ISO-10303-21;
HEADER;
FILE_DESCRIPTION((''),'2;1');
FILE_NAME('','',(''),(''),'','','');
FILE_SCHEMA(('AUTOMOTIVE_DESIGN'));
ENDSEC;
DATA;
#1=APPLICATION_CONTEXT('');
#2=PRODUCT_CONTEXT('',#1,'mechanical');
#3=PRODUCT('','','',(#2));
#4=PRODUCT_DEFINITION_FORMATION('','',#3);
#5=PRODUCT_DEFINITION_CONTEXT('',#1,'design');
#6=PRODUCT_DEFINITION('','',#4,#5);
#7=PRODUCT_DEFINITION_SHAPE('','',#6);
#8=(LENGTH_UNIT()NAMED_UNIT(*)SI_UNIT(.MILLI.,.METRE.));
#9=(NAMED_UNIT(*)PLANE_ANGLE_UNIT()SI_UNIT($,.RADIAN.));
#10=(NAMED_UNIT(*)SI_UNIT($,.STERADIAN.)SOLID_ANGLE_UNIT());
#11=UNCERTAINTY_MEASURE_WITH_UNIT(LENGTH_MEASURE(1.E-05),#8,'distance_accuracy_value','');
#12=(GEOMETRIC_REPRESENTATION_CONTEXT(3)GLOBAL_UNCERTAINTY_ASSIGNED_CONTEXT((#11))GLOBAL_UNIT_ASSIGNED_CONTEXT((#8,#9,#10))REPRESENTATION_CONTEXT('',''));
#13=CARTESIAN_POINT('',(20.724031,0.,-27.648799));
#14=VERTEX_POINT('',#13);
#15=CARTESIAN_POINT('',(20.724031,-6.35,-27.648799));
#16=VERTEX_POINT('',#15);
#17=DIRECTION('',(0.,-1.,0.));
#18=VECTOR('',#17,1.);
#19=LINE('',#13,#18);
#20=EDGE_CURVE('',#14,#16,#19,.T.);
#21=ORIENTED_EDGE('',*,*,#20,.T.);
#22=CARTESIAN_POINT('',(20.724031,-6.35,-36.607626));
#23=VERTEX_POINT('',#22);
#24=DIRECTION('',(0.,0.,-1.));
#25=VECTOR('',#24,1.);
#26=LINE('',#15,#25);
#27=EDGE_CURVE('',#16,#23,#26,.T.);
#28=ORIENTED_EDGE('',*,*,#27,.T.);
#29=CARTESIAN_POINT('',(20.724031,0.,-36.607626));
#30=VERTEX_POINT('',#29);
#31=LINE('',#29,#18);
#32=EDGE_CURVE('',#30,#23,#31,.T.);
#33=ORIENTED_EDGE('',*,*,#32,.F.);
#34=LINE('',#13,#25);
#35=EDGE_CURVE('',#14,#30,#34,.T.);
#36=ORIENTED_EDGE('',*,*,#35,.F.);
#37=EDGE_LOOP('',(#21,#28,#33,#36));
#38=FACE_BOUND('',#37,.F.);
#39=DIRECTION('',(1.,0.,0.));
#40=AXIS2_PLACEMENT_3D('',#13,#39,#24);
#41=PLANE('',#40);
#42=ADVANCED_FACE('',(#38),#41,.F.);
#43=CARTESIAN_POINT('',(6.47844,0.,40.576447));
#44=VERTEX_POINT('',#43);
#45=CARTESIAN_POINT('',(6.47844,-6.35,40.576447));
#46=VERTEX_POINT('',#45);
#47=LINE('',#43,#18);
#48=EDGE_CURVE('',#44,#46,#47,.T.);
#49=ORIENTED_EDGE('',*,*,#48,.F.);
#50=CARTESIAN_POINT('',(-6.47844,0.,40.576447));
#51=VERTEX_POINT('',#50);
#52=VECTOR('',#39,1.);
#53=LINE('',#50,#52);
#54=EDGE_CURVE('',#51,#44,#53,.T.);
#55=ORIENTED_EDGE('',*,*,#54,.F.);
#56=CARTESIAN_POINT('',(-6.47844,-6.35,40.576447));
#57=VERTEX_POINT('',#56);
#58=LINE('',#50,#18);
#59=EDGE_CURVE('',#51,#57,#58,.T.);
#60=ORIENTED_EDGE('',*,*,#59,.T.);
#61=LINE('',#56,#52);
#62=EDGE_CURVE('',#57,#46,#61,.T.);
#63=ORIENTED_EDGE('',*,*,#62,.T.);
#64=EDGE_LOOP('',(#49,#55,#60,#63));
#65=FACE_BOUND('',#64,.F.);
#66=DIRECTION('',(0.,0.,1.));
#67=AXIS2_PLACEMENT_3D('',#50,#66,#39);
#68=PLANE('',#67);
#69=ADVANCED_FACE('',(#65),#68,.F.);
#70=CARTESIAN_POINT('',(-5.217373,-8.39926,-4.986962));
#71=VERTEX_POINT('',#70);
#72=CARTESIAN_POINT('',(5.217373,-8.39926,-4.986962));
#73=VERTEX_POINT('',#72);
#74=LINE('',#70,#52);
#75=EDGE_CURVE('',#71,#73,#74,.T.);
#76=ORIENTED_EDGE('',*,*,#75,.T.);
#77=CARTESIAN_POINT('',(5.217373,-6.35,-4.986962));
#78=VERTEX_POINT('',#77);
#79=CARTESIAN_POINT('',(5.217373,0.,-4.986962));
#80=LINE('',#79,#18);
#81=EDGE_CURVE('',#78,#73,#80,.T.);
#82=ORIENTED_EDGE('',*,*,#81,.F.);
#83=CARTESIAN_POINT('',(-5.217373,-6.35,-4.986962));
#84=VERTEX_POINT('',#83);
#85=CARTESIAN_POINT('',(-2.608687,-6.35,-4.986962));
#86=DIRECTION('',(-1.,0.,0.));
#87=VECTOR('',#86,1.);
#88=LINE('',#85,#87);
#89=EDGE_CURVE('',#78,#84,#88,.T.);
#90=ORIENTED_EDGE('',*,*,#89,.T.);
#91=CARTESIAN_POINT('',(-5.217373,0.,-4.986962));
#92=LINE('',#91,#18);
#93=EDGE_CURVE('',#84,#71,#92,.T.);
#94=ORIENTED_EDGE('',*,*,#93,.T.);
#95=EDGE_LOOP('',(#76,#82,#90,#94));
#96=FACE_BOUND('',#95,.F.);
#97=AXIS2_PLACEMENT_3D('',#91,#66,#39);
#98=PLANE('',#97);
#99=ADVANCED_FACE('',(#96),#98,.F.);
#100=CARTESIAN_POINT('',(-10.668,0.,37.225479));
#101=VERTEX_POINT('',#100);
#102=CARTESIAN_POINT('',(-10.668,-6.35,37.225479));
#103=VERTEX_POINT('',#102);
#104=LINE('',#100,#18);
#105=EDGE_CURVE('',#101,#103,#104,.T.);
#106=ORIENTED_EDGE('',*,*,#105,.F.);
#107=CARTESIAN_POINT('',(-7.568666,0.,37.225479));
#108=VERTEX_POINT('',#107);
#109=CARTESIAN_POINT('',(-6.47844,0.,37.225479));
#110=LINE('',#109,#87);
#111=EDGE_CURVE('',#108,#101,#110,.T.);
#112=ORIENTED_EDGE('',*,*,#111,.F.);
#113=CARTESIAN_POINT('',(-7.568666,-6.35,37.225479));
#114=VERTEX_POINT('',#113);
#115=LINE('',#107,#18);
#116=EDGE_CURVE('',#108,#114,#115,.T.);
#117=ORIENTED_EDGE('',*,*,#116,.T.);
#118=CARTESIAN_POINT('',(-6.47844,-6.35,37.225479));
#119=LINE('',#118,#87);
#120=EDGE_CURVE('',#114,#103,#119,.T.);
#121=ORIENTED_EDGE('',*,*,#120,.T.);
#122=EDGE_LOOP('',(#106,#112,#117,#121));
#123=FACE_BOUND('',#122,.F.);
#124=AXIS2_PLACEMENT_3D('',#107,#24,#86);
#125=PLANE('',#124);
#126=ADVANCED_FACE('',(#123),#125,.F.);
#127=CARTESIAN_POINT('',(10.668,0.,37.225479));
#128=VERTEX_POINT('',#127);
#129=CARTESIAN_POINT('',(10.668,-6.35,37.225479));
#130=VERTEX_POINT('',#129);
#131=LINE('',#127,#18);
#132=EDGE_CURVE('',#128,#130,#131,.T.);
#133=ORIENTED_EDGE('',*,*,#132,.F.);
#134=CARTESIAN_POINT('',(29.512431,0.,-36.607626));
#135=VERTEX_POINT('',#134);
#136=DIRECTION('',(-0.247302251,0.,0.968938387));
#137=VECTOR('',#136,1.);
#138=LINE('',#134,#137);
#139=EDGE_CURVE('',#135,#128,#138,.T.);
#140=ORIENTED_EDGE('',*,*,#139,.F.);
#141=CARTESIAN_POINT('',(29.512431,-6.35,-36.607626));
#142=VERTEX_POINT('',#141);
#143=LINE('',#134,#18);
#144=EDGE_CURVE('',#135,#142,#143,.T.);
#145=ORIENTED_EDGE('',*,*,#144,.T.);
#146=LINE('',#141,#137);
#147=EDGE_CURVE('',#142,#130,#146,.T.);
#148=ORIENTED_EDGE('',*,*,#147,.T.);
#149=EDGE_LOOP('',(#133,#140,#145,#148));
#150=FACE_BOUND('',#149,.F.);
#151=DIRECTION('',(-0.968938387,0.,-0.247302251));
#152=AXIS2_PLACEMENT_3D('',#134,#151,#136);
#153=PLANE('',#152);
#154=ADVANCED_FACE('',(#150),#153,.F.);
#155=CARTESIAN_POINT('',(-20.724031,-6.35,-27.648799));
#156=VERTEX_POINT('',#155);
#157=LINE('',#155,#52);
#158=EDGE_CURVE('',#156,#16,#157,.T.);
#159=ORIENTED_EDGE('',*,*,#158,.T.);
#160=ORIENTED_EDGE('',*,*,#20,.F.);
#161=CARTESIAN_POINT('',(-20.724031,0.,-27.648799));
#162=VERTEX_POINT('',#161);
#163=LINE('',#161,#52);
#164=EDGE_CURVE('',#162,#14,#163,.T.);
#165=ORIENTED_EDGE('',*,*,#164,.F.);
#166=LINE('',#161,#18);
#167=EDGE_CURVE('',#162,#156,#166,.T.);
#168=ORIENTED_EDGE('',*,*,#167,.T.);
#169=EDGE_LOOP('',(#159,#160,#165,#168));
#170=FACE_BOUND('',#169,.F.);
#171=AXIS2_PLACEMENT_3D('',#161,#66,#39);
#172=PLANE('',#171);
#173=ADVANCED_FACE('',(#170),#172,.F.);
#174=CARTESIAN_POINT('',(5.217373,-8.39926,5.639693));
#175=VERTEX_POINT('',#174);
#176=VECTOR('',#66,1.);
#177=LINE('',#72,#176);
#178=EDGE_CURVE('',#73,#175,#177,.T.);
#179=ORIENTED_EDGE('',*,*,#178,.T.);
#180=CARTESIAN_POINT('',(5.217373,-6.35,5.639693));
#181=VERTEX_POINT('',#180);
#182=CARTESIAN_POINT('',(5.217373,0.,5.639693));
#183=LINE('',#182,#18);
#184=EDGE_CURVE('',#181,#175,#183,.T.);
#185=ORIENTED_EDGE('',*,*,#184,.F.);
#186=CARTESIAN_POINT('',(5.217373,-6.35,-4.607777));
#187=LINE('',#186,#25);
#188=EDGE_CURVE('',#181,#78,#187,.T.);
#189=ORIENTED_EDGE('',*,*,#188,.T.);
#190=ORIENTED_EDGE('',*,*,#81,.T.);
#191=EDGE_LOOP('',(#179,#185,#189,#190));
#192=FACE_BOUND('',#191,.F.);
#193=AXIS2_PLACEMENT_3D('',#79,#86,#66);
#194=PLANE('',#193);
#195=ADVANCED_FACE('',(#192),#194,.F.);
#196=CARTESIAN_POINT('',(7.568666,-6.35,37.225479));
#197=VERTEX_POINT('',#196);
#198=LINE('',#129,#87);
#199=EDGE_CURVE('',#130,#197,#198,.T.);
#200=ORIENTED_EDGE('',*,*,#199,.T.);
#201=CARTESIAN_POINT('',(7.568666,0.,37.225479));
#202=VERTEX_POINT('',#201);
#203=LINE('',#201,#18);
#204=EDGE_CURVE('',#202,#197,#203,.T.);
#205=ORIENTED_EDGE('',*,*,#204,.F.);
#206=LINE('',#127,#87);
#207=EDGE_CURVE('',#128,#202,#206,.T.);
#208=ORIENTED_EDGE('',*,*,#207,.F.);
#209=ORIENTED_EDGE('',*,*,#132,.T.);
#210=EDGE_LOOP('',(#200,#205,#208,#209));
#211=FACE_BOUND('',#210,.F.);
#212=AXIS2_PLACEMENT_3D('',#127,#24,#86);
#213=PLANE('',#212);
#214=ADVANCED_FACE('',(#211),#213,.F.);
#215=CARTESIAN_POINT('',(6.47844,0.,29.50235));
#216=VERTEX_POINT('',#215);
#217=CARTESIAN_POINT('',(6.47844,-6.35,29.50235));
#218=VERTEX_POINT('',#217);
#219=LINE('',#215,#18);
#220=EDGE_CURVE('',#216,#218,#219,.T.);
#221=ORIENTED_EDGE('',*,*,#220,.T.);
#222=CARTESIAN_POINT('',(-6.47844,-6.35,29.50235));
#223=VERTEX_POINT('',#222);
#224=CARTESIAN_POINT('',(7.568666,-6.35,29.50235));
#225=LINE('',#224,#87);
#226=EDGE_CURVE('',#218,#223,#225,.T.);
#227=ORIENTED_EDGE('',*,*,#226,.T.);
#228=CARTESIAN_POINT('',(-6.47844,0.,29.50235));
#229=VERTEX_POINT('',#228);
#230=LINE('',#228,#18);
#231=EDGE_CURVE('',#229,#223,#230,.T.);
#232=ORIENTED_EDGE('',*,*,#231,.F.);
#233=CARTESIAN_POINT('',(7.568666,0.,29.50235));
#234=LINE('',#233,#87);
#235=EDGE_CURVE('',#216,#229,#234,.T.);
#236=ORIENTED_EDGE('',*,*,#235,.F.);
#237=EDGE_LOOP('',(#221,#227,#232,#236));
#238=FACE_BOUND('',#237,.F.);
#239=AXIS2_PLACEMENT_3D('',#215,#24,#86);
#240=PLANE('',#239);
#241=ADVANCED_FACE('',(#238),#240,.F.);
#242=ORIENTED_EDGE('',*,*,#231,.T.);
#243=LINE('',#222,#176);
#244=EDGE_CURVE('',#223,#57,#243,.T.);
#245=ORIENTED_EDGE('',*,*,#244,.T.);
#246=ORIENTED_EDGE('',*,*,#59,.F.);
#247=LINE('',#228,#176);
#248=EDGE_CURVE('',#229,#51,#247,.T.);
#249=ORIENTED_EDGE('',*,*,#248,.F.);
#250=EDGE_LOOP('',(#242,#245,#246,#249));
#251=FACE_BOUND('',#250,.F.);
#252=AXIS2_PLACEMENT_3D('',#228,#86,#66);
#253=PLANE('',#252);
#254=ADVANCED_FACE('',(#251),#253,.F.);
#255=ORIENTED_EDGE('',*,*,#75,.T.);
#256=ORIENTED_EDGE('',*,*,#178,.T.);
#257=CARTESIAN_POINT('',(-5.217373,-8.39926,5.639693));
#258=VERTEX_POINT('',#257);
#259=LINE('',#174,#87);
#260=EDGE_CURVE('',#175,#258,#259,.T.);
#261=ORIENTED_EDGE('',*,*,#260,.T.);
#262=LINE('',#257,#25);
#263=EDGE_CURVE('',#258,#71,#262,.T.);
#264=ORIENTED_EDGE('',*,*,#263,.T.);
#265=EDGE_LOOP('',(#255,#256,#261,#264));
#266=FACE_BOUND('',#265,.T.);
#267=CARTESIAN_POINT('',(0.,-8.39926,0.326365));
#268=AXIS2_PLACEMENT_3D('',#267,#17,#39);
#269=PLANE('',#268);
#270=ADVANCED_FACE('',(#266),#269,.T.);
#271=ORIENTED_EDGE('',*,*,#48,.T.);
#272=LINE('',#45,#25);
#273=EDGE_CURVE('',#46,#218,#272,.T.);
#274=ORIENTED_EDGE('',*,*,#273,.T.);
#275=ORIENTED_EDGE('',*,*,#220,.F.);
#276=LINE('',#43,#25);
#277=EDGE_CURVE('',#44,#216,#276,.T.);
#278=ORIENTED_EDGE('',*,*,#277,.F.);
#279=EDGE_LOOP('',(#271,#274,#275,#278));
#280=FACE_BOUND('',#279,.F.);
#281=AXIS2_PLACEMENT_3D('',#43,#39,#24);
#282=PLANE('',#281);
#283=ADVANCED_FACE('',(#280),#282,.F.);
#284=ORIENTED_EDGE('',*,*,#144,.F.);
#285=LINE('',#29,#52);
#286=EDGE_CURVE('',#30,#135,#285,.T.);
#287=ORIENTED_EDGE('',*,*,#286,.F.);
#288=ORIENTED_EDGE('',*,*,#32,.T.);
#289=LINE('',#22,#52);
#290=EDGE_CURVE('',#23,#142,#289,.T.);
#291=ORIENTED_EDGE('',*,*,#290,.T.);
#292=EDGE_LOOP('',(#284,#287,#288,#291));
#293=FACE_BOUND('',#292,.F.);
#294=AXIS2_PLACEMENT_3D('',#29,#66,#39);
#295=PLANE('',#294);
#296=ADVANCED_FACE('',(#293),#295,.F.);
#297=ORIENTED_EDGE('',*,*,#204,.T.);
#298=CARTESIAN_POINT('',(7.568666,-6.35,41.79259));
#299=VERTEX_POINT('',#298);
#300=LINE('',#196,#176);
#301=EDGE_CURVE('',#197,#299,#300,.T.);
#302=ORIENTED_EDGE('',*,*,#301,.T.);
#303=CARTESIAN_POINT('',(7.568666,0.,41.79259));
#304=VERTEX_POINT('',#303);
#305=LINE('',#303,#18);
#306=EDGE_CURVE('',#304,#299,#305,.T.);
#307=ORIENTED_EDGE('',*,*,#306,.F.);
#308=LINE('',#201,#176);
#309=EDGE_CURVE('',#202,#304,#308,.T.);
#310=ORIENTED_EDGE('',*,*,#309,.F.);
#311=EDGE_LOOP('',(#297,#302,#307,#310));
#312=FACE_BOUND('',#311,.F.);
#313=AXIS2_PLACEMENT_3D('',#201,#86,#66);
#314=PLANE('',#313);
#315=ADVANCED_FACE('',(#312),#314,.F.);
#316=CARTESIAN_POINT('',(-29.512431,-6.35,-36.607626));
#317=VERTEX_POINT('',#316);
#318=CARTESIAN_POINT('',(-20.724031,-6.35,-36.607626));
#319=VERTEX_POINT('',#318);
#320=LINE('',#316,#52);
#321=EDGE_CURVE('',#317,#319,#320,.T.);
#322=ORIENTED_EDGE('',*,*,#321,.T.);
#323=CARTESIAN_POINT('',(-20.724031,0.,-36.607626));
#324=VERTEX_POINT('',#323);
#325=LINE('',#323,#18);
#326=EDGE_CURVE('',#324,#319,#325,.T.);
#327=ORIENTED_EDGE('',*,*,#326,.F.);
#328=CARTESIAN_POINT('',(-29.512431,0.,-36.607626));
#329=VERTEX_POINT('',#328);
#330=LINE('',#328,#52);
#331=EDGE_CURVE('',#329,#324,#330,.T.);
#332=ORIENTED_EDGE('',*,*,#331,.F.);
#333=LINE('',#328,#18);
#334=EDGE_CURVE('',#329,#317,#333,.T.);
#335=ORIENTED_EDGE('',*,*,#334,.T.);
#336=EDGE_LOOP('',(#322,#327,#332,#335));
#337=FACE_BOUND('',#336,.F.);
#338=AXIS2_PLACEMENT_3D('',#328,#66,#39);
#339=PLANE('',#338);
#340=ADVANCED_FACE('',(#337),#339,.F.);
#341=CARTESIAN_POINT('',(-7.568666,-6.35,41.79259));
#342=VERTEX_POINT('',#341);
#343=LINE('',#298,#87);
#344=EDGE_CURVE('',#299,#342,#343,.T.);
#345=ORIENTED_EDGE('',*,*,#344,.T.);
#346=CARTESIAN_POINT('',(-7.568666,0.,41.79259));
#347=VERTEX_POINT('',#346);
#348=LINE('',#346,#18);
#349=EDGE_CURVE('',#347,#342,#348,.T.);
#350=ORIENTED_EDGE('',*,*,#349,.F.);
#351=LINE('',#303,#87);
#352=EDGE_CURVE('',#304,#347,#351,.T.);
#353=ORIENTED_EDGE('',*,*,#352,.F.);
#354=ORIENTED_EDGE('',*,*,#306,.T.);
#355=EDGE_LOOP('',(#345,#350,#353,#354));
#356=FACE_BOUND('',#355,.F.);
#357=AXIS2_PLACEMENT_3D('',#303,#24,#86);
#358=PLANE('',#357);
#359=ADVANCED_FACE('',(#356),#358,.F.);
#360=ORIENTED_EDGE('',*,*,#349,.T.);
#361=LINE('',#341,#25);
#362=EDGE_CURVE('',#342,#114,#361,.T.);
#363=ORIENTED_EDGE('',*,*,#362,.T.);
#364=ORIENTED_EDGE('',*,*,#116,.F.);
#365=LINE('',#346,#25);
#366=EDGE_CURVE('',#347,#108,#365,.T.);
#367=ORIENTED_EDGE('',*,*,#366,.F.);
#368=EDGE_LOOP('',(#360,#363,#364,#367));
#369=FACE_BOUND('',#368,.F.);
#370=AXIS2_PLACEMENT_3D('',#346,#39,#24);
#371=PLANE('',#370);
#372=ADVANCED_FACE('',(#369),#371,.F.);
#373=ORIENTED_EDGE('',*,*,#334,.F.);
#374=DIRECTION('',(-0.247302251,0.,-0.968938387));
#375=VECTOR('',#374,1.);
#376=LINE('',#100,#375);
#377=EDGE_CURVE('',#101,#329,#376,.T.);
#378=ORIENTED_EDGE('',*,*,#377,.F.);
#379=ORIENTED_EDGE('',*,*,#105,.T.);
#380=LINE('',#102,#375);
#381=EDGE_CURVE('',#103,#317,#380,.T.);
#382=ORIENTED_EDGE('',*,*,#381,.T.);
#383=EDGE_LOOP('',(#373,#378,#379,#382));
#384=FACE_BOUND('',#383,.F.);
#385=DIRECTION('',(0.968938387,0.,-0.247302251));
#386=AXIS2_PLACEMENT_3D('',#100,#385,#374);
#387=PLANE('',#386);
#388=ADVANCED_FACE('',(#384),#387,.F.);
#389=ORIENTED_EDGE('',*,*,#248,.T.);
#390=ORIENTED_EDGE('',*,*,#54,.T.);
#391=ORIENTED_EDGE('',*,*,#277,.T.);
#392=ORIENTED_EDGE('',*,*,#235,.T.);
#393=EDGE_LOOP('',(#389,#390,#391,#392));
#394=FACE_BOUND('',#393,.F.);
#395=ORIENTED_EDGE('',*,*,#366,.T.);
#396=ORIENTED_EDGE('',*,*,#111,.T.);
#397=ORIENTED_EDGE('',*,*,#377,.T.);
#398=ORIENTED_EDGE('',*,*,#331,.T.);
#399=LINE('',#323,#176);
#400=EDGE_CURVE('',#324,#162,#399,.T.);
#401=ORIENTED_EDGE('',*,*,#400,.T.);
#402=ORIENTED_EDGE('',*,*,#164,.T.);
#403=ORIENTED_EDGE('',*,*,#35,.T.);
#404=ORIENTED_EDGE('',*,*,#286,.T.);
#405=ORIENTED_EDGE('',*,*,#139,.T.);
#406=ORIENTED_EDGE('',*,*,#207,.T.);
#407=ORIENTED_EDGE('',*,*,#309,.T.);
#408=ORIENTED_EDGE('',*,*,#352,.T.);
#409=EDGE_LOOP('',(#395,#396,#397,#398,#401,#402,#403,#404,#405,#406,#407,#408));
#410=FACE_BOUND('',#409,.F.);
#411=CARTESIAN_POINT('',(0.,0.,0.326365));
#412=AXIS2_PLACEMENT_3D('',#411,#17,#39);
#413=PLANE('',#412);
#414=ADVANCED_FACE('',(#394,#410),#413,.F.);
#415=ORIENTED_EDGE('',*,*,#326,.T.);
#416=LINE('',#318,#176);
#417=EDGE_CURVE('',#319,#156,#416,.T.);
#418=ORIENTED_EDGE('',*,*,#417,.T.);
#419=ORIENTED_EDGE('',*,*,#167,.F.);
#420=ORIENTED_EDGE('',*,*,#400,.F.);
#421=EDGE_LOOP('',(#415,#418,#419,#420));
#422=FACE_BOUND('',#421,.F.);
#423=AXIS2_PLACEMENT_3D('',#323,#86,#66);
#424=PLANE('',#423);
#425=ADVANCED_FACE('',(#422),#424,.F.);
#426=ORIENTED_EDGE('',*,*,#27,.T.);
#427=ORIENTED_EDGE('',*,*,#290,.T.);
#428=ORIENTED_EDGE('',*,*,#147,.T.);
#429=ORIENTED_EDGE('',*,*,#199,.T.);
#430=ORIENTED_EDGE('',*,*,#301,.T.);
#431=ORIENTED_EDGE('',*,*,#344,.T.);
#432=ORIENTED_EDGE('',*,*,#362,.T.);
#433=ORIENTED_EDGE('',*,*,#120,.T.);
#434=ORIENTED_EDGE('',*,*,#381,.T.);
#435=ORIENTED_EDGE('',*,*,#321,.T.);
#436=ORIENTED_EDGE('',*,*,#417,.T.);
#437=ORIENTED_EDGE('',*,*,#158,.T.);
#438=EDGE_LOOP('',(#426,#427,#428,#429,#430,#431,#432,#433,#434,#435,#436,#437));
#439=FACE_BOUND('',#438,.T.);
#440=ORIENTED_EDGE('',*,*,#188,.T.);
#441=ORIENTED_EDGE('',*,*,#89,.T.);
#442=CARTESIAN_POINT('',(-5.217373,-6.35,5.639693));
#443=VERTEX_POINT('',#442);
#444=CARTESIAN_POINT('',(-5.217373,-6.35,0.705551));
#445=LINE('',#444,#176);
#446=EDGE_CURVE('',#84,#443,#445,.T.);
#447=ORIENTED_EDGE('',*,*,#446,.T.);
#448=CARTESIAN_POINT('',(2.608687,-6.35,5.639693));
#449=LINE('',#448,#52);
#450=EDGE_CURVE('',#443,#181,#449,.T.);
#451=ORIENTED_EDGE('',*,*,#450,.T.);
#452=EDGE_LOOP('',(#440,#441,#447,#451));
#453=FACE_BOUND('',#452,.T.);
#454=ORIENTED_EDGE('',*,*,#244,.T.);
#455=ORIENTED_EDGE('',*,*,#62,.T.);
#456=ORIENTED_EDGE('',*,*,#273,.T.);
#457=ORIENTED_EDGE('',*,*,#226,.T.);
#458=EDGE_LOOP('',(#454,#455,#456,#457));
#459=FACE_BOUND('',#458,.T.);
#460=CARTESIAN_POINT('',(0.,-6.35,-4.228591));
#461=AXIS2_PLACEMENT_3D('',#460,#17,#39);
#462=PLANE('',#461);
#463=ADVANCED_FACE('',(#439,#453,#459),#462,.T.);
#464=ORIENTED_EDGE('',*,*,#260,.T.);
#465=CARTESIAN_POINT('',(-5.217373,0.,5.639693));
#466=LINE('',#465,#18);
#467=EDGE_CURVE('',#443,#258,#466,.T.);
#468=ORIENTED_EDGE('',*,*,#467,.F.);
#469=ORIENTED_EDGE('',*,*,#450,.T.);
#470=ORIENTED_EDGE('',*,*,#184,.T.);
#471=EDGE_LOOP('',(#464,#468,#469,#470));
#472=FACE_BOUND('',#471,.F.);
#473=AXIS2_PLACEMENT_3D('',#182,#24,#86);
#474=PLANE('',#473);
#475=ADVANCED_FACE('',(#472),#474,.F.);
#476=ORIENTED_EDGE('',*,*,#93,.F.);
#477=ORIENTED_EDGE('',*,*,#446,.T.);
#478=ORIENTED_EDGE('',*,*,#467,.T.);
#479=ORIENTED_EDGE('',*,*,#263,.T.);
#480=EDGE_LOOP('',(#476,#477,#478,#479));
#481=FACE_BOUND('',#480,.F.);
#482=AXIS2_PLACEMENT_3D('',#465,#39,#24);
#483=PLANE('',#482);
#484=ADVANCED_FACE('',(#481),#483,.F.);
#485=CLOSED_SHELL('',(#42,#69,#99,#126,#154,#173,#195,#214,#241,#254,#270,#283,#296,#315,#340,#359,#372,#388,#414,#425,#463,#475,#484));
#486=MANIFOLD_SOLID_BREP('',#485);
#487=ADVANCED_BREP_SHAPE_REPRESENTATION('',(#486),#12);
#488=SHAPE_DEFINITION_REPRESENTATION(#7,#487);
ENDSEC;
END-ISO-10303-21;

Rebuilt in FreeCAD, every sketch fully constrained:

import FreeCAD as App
import Part
import Sketcher

V = App.Vector
Q = App.Units.Quantity


def add_polygon(sketch, points):
    """Adds a closed chain of lines whose ends are joined by coincident constraints."""
    first, n = sketch.GeometryCount, len(points)
    for a, b in zip(points, points[1:] + points[:1]):
        sketch.addGeometry(Part.LineSegment(App.Vector(*a, 0), App.Vector(*b, 0)), False)
    for i in range(n):
        sketch.addConstraint(Sketcher.Constraint("Coincident", first + i, 2, first + (i + 1) % n, 1))

doc = App.newDocument("Part")
body = doc.addObject("PartDesign::Body", "Body")

# Sketch on XZ plane
sketch1 = body.newObject("Sketcher::SketchObject", "Sketch")
sketch1.AttachmentSupport = (doc.getObject("XZ_Plane"), [""])
sketch1.MapMode = "FlatFace"
add_polygon(sketch1, [(10.668, 37.225479), (7.568666, 37.225479), (7.568666, 41.79259), (-7.568666, 41.79259), (-7.568666, 37.225479), (-10.668, 37.225479), (-29.512431, -36.607626), (-20.724031, -36.607626), (-20.724031, -27.648799), (20.724031, -27.648799), (20.724031, -36.607626), (29.512431, -36.607626)])  # lines 0-11
add_polygon(sketch1, [(6.47844, 40.576447), (6.47844, 29.50235), (-6.47844, 29.50235), (-6.47844, 40.576447)])  # lines 12-15
sketch1.addConstraint([
    Sketcher.Constraint("Horizontal", 0),
    Sketcher.Constraint("Vertical", 1),
    Sketcher.Constraint("Horizontal", 2),
    Sketcher.Constraint("Vertical", 3),
    Sketcher.Constraint("Horizontal", 4),
    Sketcher.Constraint("Horizontal", 6),
    Sketcher.Constraint("Vertical", 7),
    Sketcher.Constraint("Horizontal", 8),
    Sketcher.Constraint("Vertical", 9),
    Sketcher.Constraint("Horizontal", 10),
    Sketcher.Constraint("Vertical", 12),
    Sketcher.Constraint("Horizontal", 13),
    Sketcher.Constraint("Vertical", 14),
    Sketcher.Constraint("Horizontal", 15),
    Sketcher.Constraint("Symmetric", 0, 2, 3, 2, -2),
    Sketcher.Constraint("Symmetric", 6, 2, 9, 2, -2),
    Sketcher.Constraint("Equal", 0, 4),
    Sketcher.Constraint("Equal", 6, 10),
    Sketcher.Constraint("Distance", 5, Q("3 in")),
    Sketcher.Constraint("DistanceX", 6, 1, 6, 2, Q("0.346 in")),
    Sketcher.Constraint("DistanceX", 4, 2, -1, 1, Q("0.42 in")),
    Sketcher.Constraint("DistanceX", 2, 2, 2, 1, Q("15.137331 mm")),
    Sketcher.Constraint("DistanceX", 13, 2, 13, 1, Q("12.95688 mm")),
    Sketcher.Constraint("DistanceY", 1, 1, 1, 2, Q("4.567111 mm")),
    Sketcher.Constraint("DistanceY", 7, 2, -1, 1, Q("27.648799 mm")),
    Sketcher.Constraint("DistanceX", 8, 1, 8, 2, Q("41.448063 mm")),
    Sketcher.Constraint("DistanceY", 7, 1, 7, 2, Q("8.958826 mm")),
    Sketcher.Constraint("DistanceY", 12, 2, 12, 1, Q("11.074097 mm")),
    Sketcher.Constraint("DistanceX", -1, 1, 12, 2, Q("6.47844 mm")),
    Sketcher.Constraint("DistanceY", -1, 1, 12, 2, Q("29.50235 mm")),
])
pad1 = body.newObject("PartDesign::Pad", "Pad")
pad1.Profile = sketch1
pad1.Length = Q("0.25 in")

# Sketch on XZ plane
sketch2 = body.newObject("Sketcher::SketchObject", "Sketch001")
sketch2.AttachmentSupport = (doc.getObject("XZ_Plane"), [""])
sketch2.MapMode = "FlatFace"
add_polygon(sketch2, [(-5.217373, 5.639693), (-5.217373, -4.986962), (5.217373, -4.986962), (5.217373, 5.639693)])  # lines 0-3
sketch2.addConstraint([
    Sketcher.Constraint("Vertical", 0),
    Sketcher.Constraint("Horizontal", 1),
    Sketcher.Constraint("Vertical", 2),
    Sketcher.Constraint("Horizontal", 3),
    Sketcher.Constraint("DistanceX", 1, 1, 1, 2, Q("10.434747 mm")),
    Sketcher.Constraint("DistanceY", 0, 2, 0, 1, Q("10.626655 mm")),
    Sketcher.Constraint("DistanceY", 0, 2, -1, 1, Q("4.986962 mm")),
    Sketcher.Constraint("DistanceX", 0, 2, -1, 1, Q("5.217373 mm")),
])
pad2 = body.newObject("PartDesign::Pad", "Pad001")
pad2.Profile = sketch2
pad2.Length = 8.39926

doc.recompute()
